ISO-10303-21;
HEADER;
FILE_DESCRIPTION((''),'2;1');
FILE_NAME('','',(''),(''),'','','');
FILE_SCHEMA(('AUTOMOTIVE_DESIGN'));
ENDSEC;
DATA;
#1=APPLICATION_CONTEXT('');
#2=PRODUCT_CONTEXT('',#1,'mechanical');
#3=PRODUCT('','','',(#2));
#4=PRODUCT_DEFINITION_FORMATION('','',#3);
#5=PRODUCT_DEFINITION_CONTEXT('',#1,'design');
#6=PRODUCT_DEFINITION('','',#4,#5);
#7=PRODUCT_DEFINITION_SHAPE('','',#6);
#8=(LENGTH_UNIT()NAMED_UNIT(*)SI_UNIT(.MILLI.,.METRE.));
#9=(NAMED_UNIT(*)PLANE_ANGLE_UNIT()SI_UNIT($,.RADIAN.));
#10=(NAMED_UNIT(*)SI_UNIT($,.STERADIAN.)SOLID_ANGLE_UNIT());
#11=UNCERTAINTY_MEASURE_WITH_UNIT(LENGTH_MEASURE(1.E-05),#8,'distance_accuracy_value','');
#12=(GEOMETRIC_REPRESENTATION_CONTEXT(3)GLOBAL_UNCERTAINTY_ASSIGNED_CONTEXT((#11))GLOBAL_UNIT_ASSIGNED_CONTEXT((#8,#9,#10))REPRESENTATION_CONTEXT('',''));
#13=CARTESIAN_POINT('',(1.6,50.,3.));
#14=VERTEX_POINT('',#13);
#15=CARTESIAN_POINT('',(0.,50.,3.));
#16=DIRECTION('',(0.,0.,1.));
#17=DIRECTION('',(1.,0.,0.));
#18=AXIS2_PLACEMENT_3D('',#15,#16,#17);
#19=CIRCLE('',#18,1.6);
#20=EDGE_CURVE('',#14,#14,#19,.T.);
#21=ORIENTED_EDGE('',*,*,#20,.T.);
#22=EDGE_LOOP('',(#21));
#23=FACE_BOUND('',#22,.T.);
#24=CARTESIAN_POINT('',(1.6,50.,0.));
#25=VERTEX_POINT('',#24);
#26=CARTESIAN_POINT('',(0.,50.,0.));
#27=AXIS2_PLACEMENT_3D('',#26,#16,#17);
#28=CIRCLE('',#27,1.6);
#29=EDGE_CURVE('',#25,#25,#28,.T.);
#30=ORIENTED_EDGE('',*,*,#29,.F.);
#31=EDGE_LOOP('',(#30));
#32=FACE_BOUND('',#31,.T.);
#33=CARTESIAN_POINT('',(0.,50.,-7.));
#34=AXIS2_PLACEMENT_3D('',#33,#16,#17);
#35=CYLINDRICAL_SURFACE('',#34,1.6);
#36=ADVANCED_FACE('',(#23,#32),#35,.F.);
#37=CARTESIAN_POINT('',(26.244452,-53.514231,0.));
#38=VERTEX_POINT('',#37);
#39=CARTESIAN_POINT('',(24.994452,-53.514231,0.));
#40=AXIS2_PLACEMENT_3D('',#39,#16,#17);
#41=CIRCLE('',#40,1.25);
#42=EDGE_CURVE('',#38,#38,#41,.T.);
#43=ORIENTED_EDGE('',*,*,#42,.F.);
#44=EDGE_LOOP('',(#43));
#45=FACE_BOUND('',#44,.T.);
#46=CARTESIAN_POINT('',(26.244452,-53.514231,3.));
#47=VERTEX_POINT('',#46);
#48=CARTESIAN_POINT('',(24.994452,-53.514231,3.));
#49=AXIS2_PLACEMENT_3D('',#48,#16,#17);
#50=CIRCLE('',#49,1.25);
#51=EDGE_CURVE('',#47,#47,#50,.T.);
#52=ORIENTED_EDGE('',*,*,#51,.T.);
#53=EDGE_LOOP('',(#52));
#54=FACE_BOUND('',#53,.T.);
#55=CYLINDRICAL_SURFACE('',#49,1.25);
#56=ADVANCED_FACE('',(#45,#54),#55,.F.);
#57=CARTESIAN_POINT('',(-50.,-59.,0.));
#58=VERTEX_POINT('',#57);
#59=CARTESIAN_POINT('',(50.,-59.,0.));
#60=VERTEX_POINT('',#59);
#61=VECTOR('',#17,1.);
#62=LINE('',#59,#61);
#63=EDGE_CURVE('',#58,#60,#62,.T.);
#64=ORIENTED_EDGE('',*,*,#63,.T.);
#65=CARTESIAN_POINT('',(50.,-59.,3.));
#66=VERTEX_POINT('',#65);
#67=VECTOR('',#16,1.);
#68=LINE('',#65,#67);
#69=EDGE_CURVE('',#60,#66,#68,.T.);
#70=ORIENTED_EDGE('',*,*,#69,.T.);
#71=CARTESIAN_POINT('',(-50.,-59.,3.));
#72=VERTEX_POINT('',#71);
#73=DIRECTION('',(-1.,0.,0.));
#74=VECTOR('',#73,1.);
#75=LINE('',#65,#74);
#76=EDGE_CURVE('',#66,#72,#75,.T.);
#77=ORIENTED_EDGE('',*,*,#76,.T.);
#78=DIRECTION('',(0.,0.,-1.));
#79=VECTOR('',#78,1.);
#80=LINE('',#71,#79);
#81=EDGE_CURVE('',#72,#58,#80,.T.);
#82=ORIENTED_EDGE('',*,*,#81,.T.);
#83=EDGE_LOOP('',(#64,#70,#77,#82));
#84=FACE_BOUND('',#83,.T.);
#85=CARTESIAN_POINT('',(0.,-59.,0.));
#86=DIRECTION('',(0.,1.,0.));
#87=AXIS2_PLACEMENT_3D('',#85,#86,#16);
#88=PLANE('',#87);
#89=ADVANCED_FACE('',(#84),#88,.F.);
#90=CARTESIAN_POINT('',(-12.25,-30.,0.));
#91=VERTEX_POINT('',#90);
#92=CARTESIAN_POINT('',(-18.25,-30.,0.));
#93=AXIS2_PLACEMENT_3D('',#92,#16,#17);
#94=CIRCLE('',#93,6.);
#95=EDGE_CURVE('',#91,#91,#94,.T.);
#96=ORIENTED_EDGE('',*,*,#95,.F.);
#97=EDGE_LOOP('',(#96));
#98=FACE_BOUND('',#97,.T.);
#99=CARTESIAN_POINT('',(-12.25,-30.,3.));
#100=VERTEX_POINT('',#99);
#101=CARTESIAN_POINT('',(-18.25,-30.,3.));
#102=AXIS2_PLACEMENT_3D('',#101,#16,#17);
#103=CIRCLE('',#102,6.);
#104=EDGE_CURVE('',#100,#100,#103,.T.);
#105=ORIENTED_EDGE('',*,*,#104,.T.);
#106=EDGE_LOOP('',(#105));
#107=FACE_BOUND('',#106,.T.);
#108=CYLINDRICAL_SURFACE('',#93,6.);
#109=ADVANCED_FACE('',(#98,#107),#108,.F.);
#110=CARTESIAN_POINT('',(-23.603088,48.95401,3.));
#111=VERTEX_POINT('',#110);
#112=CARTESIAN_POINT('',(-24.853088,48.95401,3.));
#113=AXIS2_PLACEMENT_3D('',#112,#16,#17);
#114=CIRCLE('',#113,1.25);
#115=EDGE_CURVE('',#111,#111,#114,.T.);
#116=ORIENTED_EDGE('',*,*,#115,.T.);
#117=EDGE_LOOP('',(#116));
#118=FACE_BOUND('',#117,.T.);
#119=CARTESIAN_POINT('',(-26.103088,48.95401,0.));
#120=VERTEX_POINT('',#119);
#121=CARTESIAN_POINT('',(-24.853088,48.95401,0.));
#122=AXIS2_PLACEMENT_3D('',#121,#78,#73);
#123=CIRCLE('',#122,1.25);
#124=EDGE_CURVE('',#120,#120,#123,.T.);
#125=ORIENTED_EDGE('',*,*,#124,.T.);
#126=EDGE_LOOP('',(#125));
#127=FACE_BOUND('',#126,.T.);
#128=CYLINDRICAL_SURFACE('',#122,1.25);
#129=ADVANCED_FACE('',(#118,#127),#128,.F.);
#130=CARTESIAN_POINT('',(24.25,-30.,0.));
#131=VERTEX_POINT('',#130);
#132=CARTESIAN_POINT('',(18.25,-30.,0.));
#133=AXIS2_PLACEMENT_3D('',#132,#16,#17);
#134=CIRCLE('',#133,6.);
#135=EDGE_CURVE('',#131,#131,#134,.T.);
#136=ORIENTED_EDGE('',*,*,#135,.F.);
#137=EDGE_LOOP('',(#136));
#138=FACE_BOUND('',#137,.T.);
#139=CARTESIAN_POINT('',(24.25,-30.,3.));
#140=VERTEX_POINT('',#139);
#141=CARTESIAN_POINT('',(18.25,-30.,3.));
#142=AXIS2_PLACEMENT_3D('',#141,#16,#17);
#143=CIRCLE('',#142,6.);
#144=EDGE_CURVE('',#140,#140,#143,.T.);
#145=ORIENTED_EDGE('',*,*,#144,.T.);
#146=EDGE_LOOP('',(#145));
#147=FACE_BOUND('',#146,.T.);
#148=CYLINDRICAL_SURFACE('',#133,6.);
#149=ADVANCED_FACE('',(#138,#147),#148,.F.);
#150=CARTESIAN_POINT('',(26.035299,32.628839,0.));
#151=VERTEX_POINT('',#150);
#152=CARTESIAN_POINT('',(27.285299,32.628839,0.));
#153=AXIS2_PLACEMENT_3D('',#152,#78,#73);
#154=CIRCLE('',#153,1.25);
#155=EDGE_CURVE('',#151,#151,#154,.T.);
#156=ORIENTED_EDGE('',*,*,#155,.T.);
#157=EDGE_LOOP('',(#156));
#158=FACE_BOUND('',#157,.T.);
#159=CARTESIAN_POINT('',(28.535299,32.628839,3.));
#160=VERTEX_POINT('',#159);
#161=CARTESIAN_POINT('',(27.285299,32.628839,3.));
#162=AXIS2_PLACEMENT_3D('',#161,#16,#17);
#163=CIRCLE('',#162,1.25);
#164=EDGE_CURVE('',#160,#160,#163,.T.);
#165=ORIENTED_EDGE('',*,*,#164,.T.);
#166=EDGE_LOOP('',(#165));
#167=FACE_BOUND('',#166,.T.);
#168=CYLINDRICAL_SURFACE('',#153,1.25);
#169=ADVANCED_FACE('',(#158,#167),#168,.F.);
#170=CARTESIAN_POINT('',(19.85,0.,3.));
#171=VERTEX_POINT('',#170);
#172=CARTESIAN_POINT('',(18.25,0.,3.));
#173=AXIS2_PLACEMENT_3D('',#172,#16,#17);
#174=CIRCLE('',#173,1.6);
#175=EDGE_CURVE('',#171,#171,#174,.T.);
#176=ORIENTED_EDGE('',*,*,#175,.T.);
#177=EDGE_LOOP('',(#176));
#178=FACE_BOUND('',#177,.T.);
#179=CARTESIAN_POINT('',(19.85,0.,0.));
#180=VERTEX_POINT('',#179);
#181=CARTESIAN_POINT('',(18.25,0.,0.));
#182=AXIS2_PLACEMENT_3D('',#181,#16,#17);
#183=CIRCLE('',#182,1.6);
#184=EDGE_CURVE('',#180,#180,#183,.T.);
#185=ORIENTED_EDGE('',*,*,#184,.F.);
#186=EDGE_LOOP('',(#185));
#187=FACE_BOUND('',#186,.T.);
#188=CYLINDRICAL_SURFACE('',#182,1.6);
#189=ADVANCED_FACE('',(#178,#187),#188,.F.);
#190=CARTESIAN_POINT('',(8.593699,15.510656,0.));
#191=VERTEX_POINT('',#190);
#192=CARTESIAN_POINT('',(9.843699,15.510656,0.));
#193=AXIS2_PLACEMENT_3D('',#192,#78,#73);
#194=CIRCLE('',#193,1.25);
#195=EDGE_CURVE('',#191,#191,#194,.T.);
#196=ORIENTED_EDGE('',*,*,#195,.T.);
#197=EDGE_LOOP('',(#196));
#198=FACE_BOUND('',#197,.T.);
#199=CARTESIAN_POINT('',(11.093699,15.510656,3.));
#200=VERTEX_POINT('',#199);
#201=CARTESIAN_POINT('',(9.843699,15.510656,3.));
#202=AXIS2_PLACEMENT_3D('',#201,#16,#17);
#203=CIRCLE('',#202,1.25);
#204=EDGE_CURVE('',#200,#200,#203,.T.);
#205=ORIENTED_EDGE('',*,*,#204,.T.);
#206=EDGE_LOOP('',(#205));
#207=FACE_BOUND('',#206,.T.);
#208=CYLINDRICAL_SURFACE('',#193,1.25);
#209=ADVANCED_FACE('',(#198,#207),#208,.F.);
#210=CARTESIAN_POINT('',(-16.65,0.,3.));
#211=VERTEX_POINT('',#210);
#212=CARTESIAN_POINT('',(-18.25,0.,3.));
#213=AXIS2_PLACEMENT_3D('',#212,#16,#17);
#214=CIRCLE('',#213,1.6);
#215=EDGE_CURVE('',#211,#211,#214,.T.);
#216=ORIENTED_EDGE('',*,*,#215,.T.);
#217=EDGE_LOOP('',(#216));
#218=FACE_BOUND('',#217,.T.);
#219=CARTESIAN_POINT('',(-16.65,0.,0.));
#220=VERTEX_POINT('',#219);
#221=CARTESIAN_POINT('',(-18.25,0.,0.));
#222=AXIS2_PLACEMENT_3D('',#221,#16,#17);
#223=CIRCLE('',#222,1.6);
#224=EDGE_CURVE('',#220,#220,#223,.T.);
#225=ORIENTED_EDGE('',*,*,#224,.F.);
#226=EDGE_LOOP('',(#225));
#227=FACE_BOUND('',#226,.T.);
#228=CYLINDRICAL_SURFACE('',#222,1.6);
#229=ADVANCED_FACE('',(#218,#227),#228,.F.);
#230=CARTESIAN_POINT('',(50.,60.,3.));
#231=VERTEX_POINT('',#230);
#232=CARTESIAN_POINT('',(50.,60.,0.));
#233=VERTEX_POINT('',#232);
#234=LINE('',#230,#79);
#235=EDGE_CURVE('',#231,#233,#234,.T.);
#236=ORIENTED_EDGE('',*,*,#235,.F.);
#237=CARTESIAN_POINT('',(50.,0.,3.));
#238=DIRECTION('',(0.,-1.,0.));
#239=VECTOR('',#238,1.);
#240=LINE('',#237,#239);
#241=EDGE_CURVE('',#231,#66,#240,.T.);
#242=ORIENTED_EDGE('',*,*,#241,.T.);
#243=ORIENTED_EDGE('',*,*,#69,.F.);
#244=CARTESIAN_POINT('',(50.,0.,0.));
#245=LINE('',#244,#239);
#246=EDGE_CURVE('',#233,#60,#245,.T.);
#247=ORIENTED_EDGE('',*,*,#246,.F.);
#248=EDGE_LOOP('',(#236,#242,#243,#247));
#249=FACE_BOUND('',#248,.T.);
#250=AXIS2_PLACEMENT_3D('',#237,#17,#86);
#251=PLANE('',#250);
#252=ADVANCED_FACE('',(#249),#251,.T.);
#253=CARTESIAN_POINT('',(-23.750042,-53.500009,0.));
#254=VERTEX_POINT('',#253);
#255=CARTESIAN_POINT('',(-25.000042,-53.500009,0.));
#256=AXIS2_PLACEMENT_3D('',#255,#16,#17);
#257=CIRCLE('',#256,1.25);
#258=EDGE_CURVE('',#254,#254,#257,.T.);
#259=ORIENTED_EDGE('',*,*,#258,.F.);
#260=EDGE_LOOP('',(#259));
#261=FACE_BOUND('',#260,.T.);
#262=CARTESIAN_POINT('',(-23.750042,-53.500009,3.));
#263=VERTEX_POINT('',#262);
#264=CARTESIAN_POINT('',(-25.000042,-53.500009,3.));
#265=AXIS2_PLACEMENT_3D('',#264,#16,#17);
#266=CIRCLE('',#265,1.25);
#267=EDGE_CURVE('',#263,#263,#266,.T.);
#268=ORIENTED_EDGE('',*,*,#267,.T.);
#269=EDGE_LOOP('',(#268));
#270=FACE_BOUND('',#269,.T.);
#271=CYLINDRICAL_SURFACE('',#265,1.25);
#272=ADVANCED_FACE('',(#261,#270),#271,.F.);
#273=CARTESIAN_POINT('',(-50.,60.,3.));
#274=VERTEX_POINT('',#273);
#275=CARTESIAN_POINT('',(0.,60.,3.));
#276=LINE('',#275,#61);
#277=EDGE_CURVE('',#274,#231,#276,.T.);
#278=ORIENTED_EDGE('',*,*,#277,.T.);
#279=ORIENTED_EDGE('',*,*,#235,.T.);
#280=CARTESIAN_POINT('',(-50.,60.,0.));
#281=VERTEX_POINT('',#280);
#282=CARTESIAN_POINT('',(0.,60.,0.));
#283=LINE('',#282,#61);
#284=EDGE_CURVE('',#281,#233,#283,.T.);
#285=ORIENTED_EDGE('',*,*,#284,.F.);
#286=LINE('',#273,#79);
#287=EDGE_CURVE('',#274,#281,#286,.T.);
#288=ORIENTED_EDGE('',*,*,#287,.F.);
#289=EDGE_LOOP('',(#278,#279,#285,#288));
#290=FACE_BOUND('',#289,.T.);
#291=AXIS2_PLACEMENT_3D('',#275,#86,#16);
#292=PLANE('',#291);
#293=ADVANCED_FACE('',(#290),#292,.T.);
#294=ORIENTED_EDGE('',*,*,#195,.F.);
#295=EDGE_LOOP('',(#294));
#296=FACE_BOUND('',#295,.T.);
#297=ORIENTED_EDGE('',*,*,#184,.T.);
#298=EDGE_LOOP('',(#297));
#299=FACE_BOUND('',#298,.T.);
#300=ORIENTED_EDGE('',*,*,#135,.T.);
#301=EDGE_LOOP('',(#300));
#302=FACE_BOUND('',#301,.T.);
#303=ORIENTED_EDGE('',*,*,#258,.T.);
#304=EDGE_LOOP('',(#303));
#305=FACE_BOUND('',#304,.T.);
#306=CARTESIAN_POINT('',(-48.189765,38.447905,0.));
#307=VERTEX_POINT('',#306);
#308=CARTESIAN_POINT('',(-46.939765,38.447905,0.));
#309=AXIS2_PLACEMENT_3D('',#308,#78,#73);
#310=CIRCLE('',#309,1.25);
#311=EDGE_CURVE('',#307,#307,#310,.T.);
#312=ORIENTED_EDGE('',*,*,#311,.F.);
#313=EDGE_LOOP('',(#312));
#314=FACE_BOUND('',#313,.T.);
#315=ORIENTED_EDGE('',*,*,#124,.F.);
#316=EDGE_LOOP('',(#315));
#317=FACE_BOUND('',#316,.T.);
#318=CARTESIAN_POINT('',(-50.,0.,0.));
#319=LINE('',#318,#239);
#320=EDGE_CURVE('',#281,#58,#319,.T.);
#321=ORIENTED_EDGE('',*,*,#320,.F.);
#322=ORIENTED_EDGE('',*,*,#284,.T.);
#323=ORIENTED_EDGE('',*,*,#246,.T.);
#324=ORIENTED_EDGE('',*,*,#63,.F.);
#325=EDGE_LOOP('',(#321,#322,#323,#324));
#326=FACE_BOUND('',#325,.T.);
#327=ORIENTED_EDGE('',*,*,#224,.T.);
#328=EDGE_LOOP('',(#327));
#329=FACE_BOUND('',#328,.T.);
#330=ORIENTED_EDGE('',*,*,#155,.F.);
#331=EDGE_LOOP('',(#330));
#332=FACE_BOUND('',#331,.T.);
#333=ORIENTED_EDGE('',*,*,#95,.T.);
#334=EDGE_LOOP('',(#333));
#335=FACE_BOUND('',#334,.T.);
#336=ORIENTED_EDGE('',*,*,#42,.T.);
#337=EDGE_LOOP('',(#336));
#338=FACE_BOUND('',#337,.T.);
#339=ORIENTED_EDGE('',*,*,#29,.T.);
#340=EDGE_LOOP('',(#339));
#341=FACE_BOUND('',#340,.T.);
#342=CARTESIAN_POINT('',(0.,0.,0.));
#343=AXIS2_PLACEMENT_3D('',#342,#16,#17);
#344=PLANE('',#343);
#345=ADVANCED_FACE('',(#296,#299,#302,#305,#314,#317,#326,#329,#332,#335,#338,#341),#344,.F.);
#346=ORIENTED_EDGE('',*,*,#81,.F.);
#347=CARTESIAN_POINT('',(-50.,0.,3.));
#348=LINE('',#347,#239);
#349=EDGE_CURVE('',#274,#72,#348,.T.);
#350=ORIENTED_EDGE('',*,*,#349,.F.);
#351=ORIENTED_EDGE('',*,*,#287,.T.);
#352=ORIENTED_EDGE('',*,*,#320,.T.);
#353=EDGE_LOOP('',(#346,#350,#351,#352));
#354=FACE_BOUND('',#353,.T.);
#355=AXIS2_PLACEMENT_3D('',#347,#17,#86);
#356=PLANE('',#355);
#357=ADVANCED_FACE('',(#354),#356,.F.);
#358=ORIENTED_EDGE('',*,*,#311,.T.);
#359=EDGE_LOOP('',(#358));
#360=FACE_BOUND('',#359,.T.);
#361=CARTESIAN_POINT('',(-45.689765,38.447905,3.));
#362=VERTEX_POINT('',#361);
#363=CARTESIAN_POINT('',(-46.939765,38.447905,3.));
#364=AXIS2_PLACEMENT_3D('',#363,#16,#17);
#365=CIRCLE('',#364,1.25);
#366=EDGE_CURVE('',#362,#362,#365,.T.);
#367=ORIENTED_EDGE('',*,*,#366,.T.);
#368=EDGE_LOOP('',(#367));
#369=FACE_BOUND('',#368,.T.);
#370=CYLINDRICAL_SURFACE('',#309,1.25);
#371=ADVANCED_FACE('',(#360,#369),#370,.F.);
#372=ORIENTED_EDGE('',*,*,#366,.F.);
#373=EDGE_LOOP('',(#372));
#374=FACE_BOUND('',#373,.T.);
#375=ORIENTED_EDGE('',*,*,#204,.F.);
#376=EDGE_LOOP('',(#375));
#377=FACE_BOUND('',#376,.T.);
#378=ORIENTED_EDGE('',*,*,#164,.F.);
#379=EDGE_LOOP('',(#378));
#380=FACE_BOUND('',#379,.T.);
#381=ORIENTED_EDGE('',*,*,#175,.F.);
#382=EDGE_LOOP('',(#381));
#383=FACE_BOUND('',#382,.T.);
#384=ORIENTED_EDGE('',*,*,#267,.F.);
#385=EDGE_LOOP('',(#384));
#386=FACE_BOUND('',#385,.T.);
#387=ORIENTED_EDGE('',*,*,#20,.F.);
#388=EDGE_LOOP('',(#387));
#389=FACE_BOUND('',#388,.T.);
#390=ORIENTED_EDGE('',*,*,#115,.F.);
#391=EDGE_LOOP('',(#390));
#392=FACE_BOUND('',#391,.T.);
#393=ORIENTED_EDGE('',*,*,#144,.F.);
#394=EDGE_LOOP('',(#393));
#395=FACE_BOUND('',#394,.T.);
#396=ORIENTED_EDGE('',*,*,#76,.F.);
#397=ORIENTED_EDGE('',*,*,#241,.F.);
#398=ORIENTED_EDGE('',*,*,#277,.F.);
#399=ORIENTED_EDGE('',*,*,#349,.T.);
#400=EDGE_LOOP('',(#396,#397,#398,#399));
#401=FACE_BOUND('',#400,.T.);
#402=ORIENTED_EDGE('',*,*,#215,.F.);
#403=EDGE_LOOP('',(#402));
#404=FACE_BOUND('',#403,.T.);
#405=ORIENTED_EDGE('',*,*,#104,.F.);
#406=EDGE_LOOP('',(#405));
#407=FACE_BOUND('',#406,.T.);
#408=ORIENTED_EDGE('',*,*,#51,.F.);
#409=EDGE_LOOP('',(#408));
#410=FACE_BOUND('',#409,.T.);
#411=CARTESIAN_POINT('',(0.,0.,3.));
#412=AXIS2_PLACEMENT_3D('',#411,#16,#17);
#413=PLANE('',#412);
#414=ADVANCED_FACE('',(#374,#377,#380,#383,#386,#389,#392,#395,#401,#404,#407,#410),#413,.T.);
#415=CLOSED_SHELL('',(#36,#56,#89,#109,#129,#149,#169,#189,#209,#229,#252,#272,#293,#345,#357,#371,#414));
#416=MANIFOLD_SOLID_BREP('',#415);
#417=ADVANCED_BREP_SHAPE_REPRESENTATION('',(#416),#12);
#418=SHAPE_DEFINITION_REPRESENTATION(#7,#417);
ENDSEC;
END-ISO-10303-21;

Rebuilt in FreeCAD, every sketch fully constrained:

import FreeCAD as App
import Part
import Sketcher
from FreeCAD import Vector


def add_polygon(sketch, points):
    """Adds a closed chain of lines whose ends are joined by coincident constraints."""
    first, n = sketch.GeometryCount, len(points)
    for a, b in zip(points, points[1:] + points[:1]):
        sketch.addGeometry(Part.LineSegment(App.Vector(*a, 0), App.Vector(*b, 0)), False)
    for i in range(n):
        sketch.addConstraint(Sketcher.Constraint("Coincident", first + i, 2, first + (i + 1) % n, 1))

doc = App.newDocument("Part")
body = doc.addObject("PartDesign::Body", "Body")

# Sketch on XY plane
sketch1 = body.newObject("Sketcher::SketchObject", "Sketch")
sketch1.AttachmentSupport = (doc.getObject("XY_Plane"), [""])
sketch1.MapMode = "FlatFace"
add_polygon(sketch1, [(-50, 60), (-50, -60), (50, -60), (50, 60)])  # lines 0-3
sketch1.addConstraint(Sketcher.Constraint("Vertical", 0))
sketch1.addConstraint(Sketcher.Constraint("Horizontal", 1))
sketch1.addConstraint(Sketcher.Constraint("Vertical", 2))
sketch1.addConstraint(Sketcher.Constraint("Horizontal", 3))
sketch1.addConstraint(Sketcher.Constraint("Symmetric", 0, 2, 2, 2, -1, 1))
sketch1.addConstraint(Sketcher.Constraint("DistanceX", 1, 1, 1, 2, 100.0))
sketch1.addConstraint(Sketcher.Constraint("DistanceY", 0, 2, 0, 1, 120.0))
pad1 = body.newObject("PartDesign::Pad", "Pad")
pad1.Profile = sketch1
pad1.Length = 3

# Sketch on XY plane
sketch2 = body.newObject("Sketcher::SketchObject", "Sketch001")
sketch2.AttachmentSupport = (doc.getObject("XY_Plane"), [""])
sketch2.MapMode = "FlatFace"
sketch2.AttachmentOffset = App.Placement(Vector(0, 0, 3), App.Rotation())
sketch2.addGeometry(Part.Circle(Vector(18, -30, 0), Vector(0, 0, 1), 6), False)
sketch2.addGeometry(Part.Circle(Vector(-18, -30, 0), Vector(0, 0, 1), 6), False)
sketch2.addConstraint(Sketcher.Constraint("Equal", 0, 1))
sketch2.addConstraint(Sketcher.Constraint("Symmetric", 0, 3, 1, 3, -2))
sketch2.addConstraint(Sketcher.Constraint("Diameter", 0, 12.0))
sketch2.addConstraint(Sketcher.Constraint("DistanceY", 0, 3, -1, 1, 30.0))
sketch2.addConstraint(Sketcher.Constraint("DistanceX", 1, 3, 0, 3, 36.5))
pocket1 = body.newObject("PartDesign::Pocket", "Pocket")
pocket1.Profile = sketch2
pocket1.Length = 3

# Sketch on XY plane
sketch3 = body.newObject("Sketcher::SketchObject", "Sketch002")
sketch3.AttachmentSupport = (doc.getObject("XY_Plane"), [""])
sketch3.MapMode = "FlatFace"
sketch3.AttachmentOffset = App.Placement(Vector(0, 0, 3), App.Rotation())
sketch3.addGeometry(Part.Circle(Vector(18.2, 0, 0), Vector(0, 0, 1), 1.6), False)
sketch3.addGeometry(Part.Circle(Vector(-18.2, 0, 0), Vector(0, 0, 1), 1.6), False)
sketch3.addConstraint(Sketcher.Constraint("Equal", 0, 1))
sketch3.addConstraint(Sketcher.Constraint("Symmetric", 0, 3, 1, 3, -1, 1))
sketch3.addConstraint(Sketcher.Constraint("PointOnObject", 0, 3, -1))
sketch3.addConstraint(Sketcher.Constraint("Diameter", 0, 3.2))
sketch3.addConstraint(Sketcher.Constraint("DistanceX", 1, 3, 0, 3, 36.5))
pocket2 = body.newObject("PartDesign::Pocket", "Pocket001")
pocket2.Profile = sketch3
pocket2.Length = 3

# Sketch on XY plane
sketch4 = body.newObject("Sketcher::SketchObject", "Sketch003")
sketch4.AttachmentSupport = (doc.getObject("XY_Plane"), [""])
sketch4.MapMode = "FlatFace"
sketch4.AttachmentOffset = App.Placement(Vector(0, 0, 3), App.Rotation())
sketch4.addGeometry(Part.Circle(Vector(0, 50, 0), Vector(0, 0, 1), 1.6), False)
sketch4.addConstraint(Sketcher.Constraint("PointOnObject", 0, 3, -2))
sketch4.addConstraint(Sketcher.Constraint("Diameter", 0, 3.2))
sketch4.addConstraint(Sketcher.Constraint("DistanceY", -1, 1, 0, 3, 50.0))
pocket3 = body.newObject("PartDesign::Pocket", "Pocket002")
pocket3.Profile = sketch4
pocket3.Length = 10

# Sketch on XZ plane
sketch5 = body.newObject("Sketcher::SketchObject", "Sketch004")
sketch5.AttachmentSupport = (doc.getObject("XZ_Plane"), [""])
sketch5.MapMode = "FlatFace"
sketch5.AttachmentOffset = App.Placement(Vector(0, 0, 60), App.Rotation())
add_polygon(sketch5, [(50, 0), (50, 3), (-50, 3), (-50, 0)])  # lines 0-3
sketch5.addConstraint(Sketcher.Constraint("Vertical", 0))
sketch5.addConstraint(Sketcher.Constraint("Horizontal", 1))
sketch5.addConstraint(Sketcher.Constraint("Vertical", 2))
sketch5.addConstraint(Sketcher.Constraint("Horizontal", 3))
sketch5.addConstraint(Sketcher.Constraint("Symmetric", 2, 2, 3, 2, -1, 1))
sketch5.addConstraint(Sketcher.Constraint("DistanceX", 1, 2, 1, 1, 100.0))
sketch5.addConstraint(Sketcher.Constraint("DistanceY", 0, 1, 0, 2, 3.0))
pocket4 = body.newObject("PartDesign::Pocket", "Pocket003")
pocket4.Profile = sketch5
pocket4.Length = 1

# Sketch on XY plane
sketch6 = body.newObject("Sketcher::SketchObject", "Sketch005")
sketch6.AttachmentSupport = (doc.getObject("XY_Plane"), [""])
sketch6.MapMode = "FlatFace"
sketch6.addGeometry(Part.Circle(Vector(-24.9, 49, 0), Vector(0, 0, 1), 1.2), False)
sketch6.addGeometry(Part.Circle(Vector(27.3, 32.6, 0), Vector(0, 0, 1), 1.2), False)
sketch6.addGeometry(Part.Circle(Vector(9.8, 15.5, 0), Vector(0, 0, 1), 1.2), False)
sketch6.addGeometry(Part.Circle(Vector(-46.9, 38.4, 0), Vector(0, 0, 1), 1.2), False)
sketch6.addConstraint(Sketcher.Constraint("Equal", 0, 1))
sketch6.addConstraint(Sketcher.Constraint("Equal", 1, 2))
sketch6.addConstraint(Sketcher.Constraint("Equal", 2, 3))
sketch6.addConstraint(Sketcher.Constraint("Diameter", 0, 2.5))
sketch6.addConstraint(Sketcher.Constraint("DistanceX", -1, 1, 1, 3, 27.285299))
sketch6.addConstraint(Sketcher.Constraint("DistanceX", -1, 1, 2, 3, 9.843699))
sketch6.addConstraint(Sketcher.Constraint("DistanceX", 0, 3, -1, 1, 24.853088))
sketch6.addConstraint(Sketcher.Constraint("DistanceY", -1, 1, 0, 3, 48.95401))
sketch6.addConstraint(Sketcher.Constraint("DistanceY", -1, 1, 1, 3, 32.628839))
sketch6.addConstraint(Sketcher.Constraint("DistanceY", 2, 3, 3, 3, 22.937249))
sketch6.addConstraint(Sketcher.Constraint("DistanceY", -1, 1, 2, 3, 15.510656))
sketch6.addConstraint(Sketcher.Constraint("DistanceX", 3, 3, -1, 1, 46.939765))
doc.recompute()
hole = body.newObject("PartDesign::Hole", "Hole")
hole.Profile = sketch6
hole.ThreadType = "None"
hole.Diameter = 2.5
hole.DepthType = "Dimension"
hole.Depth = 8.5
hole.DrillPoint = "Angled"
hole.DrillPointAngle = 118
hole.Reversed = True

# Sketch on XY plane
sketch7 = body.newObject("Sketcher::SketchObject", "Sketch006")
sketch7.AttachmentSupport = (doc.getObject("XY_Plane"), [""])
sketch7.MapMode = "FlatFace"
sketch7.AttachmentOffset = App.Placement(Vector(0, 0, 3), App.Rotation())
sketch7.addGeometry(Part.Circle(Vector(-25, -53.5, 0), Vector(0, 0, 1), 1.2), False)
sketch7.addGeometry(Part.Circle(Vector(-25, -53.5, 0), Vector(0, 0, 1), 1.2), False)
sketch7.addGeometry(Part.Circle(Vector(25, -53.5, 0), Vector(0, 0, 1), 1.2), False)
sketch7.addConstraint(Sketcher.Constraint("Equal", 0, 1))
sketch7.addConstraint(Sketcher.Constraint("Equal", 1, 2))
sketch7.addConstraint(Sketcher.Constraint("Diameter", 0, 2.5))
sketch7.addConstraint(Sketcher.Constraint("DistanceX", 1, 3, -1, 1, 25.0))
sketch7.addConstraint(Sketcher.Constraint("DistanceY", 1, 3, -1, 1, 53.5))
sketch7.addConstraint(Sketcher.Constraint("DistanceX", 0, 3, -1, 1, 25.000042))
sketch7.addConstraint(Sketcher.Constraint("DistanceY", 0, 3, -1, 1, 53.500009))
sketch7.addConstraint(Sketcher.Constraint("DistanceY", 2, 3, -1, 1, 53.514231))
sketch7.addConstraint(Sketcher.Constraint("DistanceX", -1, 1, 2, 3, 24.994452))
doc.recompute()
hole2 = body.newObject("PartDesign::Hole", "Hole001")
hole2.Profile = sketch7
hole2.ThreadType = "None"
hole2.Diameter = 2.5
hole2.DepthType = "Dimension"
hole2.Depth = 8.5
hole2.DrillPoint = "Angled"
hole2.DrillPointAngle = 118

doc.recompute()
